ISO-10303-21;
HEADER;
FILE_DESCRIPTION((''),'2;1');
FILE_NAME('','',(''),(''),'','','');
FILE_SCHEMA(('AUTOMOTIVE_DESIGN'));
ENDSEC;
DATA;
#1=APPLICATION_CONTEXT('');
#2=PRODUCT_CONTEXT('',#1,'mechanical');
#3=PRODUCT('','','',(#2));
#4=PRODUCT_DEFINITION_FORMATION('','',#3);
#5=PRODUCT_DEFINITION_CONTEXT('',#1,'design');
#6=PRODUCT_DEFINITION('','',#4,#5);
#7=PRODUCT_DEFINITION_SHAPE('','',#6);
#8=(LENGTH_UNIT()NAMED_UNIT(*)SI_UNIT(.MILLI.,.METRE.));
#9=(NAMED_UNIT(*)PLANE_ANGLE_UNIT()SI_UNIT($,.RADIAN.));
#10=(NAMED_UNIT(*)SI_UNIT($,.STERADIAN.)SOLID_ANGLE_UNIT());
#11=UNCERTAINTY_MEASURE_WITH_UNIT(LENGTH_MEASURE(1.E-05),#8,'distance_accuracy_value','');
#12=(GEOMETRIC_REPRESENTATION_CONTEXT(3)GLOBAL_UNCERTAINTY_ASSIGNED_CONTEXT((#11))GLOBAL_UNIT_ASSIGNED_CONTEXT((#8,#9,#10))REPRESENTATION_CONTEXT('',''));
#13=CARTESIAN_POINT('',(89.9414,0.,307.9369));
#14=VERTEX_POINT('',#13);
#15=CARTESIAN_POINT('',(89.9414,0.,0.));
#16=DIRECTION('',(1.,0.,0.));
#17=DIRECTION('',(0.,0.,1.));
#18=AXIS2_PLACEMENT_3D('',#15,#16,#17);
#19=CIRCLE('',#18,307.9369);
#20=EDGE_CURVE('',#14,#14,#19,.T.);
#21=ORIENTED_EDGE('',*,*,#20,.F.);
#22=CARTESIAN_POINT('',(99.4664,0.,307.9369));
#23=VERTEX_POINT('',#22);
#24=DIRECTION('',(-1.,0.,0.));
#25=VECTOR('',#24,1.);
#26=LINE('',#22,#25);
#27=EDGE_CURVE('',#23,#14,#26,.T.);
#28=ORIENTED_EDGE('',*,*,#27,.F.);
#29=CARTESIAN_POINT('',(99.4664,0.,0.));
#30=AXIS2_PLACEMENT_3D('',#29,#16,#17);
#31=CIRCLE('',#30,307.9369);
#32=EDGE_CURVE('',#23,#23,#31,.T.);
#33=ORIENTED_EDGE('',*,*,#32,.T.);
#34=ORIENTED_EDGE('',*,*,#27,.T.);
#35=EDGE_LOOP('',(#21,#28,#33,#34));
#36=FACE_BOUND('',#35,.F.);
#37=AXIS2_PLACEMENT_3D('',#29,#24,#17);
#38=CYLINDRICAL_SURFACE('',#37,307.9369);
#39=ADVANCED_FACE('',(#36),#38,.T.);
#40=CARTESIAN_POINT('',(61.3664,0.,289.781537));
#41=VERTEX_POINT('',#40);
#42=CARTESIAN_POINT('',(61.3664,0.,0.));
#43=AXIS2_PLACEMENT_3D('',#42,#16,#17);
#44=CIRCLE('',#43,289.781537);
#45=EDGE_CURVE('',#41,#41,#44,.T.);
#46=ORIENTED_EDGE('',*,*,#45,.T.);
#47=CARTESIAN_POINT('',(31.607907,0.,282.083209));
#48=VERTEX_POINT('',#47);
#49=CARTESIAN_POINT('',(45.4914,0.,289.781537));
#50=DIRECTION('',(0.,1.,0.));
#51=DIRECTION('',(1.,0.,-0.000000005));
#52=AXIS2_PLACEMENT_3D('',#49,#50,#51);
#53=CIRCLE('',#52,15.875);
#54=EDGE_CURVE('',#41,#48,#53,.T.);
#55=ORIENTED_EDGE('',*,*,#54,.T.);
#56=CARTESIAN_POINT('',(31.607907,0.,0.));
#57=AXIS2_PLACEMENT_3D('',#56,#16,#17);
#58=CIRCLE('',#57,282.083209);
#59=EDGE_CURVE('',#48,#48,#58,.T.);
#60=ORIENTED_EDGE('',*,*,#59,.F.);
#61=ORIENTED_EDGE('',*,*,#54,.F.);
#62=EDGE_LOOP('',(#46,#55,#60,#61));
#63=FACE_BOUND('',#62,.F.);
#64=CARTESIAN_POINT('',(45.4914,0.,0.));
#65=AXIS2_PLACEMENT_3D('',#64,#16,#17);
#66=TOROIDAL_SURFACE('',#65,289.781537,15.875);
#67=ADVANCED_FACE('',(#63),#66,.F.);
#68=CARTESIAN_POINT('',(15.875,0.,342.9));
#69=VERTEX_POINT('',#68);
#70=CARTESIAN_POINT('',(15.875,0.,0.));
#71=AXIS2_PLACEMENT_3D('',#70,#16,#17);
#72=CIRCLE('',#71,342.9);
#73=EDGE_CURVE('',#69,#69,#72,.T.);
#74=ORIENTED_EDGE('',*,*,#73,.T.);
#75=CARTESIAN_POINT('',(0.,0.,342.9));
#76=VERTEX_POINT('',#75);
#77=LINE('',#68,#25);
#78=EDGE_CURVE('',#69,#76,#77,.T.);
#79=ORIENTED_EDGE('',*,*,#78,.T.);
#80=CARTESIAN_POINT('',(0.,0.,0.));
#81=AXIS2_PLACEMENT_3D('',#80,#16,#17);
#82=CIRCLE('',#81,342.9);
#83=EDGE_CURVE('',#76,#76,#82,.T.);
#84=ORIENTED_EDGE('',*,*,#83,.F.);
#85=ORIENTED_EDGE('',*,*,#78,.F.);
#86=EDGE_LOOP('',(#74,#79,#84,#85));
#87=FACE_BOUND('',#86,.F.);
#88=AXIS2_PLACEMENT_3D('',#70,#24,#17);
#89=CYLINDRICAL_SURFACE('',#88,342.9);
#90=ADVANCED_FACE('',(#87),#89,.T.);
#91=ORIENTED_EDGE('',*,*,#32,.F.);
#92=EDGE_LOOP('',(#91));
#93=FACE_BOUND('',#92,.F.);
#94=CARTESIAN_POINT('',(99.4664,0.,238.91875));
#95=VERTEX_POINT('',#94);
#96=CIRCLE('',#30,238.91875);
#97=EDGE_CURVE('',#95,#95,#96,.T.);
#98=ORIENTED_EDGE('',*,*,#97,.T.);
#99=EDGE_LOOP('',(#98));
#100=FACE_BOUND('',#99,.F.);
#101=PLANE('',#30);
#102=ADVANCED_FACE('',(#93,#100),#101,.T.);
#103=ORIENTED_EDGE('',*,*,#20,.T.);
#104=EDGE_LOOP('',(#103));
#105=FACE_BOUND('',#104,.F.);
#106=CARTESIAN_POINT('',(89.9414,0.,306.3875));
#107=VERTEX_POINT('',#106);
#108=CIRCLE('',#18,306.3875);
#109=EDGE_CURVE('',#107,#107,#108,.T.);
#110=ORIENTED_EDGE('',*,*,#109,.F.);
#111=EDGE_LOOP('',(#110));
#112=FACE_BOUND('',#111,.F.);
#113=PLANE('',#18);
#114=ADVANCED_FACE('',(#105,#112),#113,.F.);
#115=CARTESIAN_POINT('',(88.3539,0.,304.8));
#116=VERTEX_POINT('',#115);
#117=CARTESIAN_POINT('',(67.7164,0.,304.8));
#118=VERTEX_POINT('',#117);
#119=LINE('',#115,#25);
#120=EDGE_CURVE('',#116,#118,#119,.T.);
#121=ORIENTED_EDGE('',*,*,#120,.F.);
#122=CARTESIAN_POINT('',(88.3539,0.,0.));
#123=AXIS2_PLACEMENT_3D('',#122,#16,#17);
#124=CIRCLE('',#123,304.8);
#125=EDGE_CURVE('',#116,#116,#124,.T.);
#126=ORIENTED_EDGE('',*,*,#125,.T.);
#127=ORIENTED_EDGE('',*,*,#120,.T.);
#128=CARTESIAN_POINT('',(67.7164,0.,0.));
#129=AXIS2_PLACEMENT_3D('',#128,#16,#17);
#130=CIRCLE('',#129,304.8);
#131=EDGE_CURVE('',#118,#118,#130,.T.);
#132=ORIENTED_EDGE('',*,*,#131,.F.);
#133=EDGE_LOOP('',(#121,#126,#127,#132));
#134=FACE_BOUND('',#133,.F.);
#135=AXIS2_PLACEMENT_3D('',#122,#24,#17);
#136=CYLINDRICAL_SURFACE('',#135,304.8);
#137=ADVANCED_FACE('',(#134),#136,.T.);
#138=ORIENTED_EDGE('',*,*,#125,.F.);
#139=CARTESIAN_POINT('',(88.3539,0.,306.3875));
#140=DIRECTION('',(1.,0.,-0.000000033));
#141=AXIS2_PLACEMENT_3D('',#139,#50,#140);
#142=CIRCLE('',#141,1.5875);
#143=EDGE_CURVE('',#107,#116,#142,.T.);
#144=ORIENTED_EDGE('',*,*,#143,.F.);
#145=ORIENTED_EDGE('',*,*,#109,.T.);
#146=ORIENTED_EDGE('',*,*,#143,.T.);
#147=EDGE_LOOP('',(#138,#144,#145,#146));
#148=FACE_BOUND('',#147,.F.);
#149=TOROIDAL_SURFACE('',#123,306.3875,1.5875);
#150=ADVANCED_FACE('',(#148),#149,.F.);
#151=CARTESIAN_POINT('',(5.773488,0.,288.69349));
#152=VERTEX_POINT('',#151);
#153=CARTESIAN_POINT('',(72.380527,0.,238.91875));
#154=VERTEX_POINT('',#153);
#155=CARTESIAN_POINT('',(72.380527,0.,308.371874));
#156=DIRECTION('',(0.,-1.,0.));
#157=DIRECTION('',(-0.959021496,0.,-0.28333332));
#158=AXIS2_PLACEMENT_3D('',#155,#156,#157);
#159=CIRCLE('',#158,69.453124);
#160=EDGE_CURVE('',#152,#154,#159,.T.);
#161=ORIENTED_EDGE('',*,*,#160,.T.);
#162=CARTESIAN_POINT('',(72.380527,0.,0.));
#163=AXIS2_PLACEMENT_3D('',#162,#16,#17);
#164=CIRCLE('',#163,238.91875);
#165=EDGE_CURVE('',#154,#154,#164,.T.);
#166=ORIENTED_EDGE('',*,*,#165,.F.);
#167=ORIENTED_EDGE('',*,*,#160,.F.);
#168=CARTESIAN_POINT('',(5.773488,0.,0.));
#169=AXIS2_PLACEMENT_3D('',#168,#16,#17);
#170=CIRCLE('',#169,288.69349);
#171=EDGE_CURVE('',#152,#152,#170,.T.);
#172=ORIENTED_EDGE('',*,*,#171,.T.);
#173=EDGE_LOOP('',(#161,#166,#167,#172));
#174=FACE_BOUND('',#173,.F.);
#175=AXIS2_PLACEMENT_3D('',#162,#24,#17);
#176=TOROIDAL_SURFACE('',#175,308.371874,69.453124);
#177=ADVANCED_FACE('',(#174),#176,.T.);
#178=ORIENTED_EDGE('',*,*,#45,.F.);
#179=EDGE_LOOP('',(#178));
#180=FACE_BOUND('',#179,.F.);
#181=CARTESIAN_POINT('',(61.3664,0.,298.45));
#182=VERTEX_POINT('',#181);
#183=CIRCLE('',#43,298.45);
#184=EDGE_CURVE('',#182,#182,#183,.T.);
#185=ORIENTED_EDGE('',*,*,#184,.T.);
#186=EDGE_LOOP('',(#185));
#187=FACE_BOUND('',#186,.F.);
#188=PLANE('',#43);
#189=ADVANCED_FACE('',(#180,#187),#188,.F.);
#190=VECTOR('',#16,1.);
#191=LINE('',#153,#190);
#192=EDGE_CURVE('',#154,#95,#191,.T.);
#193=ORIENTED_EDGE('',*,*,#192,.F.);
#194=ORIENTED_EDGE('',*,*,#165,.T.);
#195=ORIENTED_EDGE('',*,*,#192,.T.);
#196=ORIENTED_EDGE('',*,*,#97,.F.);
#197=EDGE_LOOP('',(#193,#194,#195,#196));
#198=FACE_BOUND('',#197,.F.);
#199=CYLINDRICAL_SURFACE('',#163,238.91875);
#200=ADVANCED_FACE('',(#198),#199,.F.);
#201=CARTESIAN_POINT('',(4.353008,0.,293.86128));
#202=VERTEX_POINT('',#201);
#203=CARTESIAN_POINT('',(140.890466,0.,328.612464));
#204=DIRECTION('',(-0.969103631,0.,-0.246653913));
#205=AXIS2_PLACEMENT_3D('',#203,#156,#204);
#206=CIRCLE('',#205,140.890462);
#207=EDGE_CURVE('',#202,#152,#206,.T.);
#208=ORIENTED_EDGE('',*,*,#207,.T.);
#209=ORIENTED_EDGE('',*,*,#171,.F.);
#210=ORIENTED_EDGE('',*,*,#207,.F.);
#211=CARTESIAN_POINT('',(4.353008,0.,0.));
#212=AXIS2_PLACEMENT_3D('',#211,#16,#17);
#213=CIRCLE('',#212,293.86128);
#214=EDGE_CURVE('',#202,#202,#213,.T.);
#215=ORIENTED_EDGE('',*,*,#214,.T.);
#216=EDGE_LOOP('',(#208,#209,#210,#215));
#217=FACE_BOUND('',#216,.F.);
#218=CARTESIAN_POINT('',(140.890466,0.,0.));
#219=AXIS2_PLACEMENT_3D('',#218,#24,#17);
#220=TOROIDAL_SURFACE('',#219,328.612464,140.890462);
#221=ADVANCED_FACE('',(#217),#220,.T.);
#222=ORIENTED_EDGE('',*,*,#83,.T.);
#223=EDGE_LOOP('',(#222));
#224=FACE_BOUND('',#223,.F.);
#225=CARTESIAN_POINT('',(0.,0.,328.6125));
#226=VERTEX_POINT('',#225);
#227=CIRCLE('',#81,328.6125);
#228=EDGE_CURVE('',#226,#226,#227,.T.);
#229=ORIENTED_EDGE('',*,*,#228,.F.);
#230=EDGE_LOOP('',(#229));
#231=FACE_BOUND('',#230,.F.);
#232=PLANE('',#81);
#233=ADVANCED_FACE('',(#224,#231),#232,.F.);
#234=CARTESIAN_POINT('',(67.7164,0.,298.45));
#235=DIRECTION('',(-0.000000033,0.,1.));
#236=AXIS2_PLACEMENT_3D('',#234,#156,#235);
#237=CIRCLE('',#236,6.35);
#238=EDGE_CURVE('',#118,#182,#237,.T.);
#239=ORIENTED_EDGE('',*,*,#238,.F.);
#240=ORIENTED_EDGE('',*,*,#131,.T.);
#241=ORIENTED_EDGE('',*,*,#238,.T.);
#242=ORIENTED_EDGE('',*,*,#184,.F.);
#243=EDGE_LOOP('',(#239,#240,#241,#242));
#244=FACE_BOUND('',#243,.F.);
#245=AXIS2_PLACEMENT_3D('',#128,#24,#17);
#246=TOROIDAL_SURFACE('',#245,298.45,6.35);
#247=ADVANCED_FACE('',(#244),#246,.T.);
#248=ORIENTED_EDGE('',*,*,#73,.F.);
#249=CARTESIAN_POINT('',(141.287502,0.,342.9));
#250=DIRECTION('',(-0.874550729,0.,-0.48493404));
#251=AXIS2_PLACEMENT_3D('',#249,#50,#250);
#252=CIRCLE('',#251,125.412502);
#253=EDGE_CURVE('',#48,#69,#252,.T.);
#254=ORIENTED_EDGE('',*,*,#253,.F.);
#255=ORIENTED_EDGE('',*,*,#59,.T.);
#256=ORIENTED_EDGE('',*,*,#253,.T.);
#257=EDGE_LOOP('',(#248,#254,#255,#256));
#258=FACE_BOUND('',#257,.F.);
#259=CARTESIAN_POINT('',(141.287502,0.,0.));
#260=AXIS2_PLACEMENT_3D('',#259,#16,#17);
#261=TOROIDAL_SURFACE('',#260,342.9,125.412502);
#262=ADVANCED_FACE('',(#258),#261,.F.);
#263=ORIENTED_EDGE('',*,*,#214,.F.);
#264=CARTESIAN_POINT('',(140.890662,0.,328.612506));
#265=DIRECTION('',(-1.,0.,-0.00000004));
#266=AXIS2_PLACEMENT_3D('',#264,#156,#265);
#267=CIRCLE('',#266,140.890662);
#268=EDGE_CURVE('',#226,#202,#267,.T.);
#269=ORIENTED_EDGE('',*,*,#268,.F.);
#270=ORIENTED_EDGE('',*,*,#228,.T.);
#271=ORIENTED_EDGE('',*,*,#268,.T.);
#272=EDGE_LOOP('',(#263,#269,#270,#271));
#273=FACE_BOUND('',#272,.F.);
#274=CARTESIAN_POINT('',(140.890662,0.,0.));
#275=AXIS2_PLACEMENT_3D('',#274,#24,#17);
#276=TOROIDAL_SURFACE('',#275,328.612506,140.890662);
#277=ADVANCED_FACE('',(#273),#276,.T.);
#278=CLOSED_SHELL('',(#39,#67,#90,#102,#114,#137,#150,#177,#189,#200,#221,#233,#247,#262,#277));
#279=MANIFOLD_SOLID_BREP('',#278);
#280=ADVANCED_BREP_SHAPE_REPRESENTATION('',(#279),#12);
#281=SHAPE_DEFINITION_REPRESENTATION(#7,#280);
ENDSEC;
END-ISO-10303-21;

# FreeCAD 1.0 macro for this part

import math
import FreeCAD as App
import Part
import Sketcher
Q = App.Units.Quantity

doc = App.newDocument("Part")
params = doc.addObject("Spreadsheet::Sheet", "Params")
for row, (alias, value) in enumerate([
    ("sketch1_radius", "0.25 in"),
    ("sketch1_radius2", "2.734375 in"),
    ("sketch1_radius3", "0.0625 in"),
    ("sketch1_radius4", "0.625 in"),
    ("sketch1_radius5", "4.9375001 in"),
    ("revolution_angle", "360 deg"),
], start=1):
    params.set(f"A{row}", alias)
    params.set(f"B{row}", "=" + value)
    params.setAlias(f"B{row}", alias)

body = doc.addObject("PartDesign::Body", "Body")

# Sketch on XZ plane
sketch1 = body.newObject("Sketcher::SketchObject", "Sketch")
sketch1.AttachmentSupport = (doc.getObject("XZ_Plane"), [""])
sketch1.MapMode = "FlatFace"
sketch1.addGeometry([
    Part.LineSegment(App.Vector(15.9, 342.9, 0), App.Vector(0, 342.9, 0)),  # 0
    Part.LineSegment(App.Vector(0, 342.9, 0), App.Vector(0, 328.6, 0)),  # 1
    Part.ArcOfCircle(Part.Circle(App.Vector(140.9, 328.6, 0), App.Vector(0, 0, 1), 140.9), math.radians(-180), math.radians(-165.72)),  # 2
    Part.ArcOfCircle(Part.Circle(App.Vector(140.9, 328.6, 0), App.Vector(0, 0, 1), 140.9), math.radians(-165.72), math.radians(-163.54)),  # 3
    Part.ArcOfCircle(Part.Circle(App.Vector(72.4, 308.4, 0), App.Vector(0, 0, 1), 69.5), math.radians(-164), math.radians(-90)),  # 4
    Part.LineSegment(App.Vector(72.4, 238.9, 0), App.Vector(99.5, 238.9, 0)),  # 5
    Part.LineSegment(App.Vector(99.5, 238.9, 0), App.Vector(99.5, 307.9, 0)),  # 6
    Part.LineSegment(App.Vector(99.5, 307.9, 0), App.Vector(89.9, 307.9, 0)),  # 7
    Part.LineSegment(App.Vector(89.9, 307.9, 0), App.Vector(89.9, 306.4, 0)),  # 8
    Part.ArcOfCircle(Part.Circle(App.Vector(88.4, 306.4, 0), App.Vector(0, 0, 1), 1.6), math.radians(-90), math.radians(0)),  # 9
    Part.LineSegment(App.Vector(88.4, 304.8, 0), App.Vector(67.7, 304.8, 0)),  # 10
    Part.ArcOfCircle(Part.Circle(App.Vector(67.7, 298.4, 0), App.Vector(0, 0, 1), 6.4), math.radians(90), math.radians(180)),  # 11
    Part.LineSegment(App.Vector(61.4, 298.4, 0), App.Vector(61.4, 289.8, 0)),  # 12
    Part.ArcOfCircle(Part.Circle(App.Vector(45.5, 289.8, 0), App.Vector(0, 0, 1), 15.9), math.radians(-151), math.radians(0)),  # 13
    Part.ArcOfCircle(Part.Circle(App.Vector(141.3, 342.9, 0), App.Vector(0, 0, 1), 125.4), math.radians(-180), math.radians(-151)),  # 14
], False)
sketch1.addConstraint([
    Sketcher.Constraint("Coincident", 0, 2, 1, 1),
    Sketcher.Constraint("Tangent", 1, 2, 2, 1),
    Sketcher.Constraint("Tangent", 2, 2, 3, 1),
    Sketcher.Constraint("Tangent", 3, 2, 4, 1),
    Sketcher.Constraint("Tangent", 4, 2, 5, 1),
    Sketcher.Constraint("Coincident", 5, 2, 6, 1),
    Sketcher.Constraint("Coincident", 6, 2, 7, 1),
    Sketcher.Constraint("Coincident", 7, 2, 8, 1),
    Sketcher.Constraint("Tangent", 8, 2, 9, 2),
    Sketcher.Constraint("Tangent", 9, 1, 10, 1),
    Sketcher.Constraint("Tangent", 10, 2, 11, 1),
    Sketcher.Constraint("Tangent", 11, 2, 12, 1),
    Sketcher.Constraint("Tangent", 12, 2, 13, 2),
    Sketcher.Constraint("Tangent", 13, 1, 14, 2),
    Sketcher.Constraint("Coincident", 14, 1, 0, 1),
    Sketcher.Constraint("Horizontal", 0),
    Sketcher.Constraint("Vertical", 1),
    Sketcher.Constraint("Horizontal", 5),
    Sketcher.Constraint("Vertical", 6),
    Sketcher.Constraint("Horizontal", 7),
    Sketcher.Constraint("Vertical", 8),
    Sketcher.Constraint("Horizontal", 10),
    Sketcher.Constraint("Vertical", 12),
    Sketcher.Constraint("PointOnObject", 0, 2, -2),
    Sketcher.Constraint("Horizontal", 14, 3, 0, 2),
    Sketcher.Constraint("Radius", 11, Q("0.25 in")),
    Sketcher.Constraint("DistanceY", -1, 1, 9, 1, Q("12 in")),
    Sketcher.Constraint("Radius", 4, Q("2.734375 in")),
    Sketcher.Constraint("Radius", 9, Q("0.0625 in")),
    Sketcher.Constraint("Radius", 13, Q("0.625 in")),
    Sketcher.Constraint("Radius", 14, Q("4.9375001 in")),
    Sketcher.Constraint("DistanceY", -1, 1, 14, 3, Q("13.5 in")),
    Sketcher.Constraint("DistanceX", 0, 2, 0, 1, Q("0.625 in")),
    Sketcher.Constraint("DistanceX", 7, 2, 7, 1, Q("0.375 in")),
    Sketcher.Constraint("DistanceX", 10, 2, 10, 1, Q("0.8125 in")),
    Sketcher.Constraint("DistanceY", 1, 2, 1, 1, Q("0.5625 in")),
    Sketcher.Constraint("DistanceY", 8, 2, 8, 1, Q("0.061 in")),
    Sketcher.Constraint("DistanceY", -1, 1, 4, 3, Q("12.140625 in")),
    Sketcher.Constraint("DistanceX", -1, 1, 11, 3, Q("2.666 in")),
    Sketcher.Constraint("Radius", 2, 140.890662),
    Sketcher.Constraint("Radius", 3, 140.890462),
    Sketcher.Constraint("DistanceX", 2, 2, 13, 1, 27.254899),
])
sketch1.setExpression("Constraints[25]", "Params.sketch1_radius")
sketch1.setExpression("Constraints[27]", "Params.sketch1_radius2")
sketch1.setExpression("Constraints[28]", "Params.sketch1_radius3")
sketch1.setExpression("Constraints[29]", "Params.sketch1_radius4")
sketch1.setExpression("Constraints[30]", "Params.sketch1_radius5")
revolution = body.newObject("PartDesign::Revolution", "Revolution")
revolution.Profile = sketch1
revolution.ReferenceAxis = (sketch1, ["H_Axis"])
revolution.setExpression("Angle", "Params.revolution_angle")

doc.recompute()
